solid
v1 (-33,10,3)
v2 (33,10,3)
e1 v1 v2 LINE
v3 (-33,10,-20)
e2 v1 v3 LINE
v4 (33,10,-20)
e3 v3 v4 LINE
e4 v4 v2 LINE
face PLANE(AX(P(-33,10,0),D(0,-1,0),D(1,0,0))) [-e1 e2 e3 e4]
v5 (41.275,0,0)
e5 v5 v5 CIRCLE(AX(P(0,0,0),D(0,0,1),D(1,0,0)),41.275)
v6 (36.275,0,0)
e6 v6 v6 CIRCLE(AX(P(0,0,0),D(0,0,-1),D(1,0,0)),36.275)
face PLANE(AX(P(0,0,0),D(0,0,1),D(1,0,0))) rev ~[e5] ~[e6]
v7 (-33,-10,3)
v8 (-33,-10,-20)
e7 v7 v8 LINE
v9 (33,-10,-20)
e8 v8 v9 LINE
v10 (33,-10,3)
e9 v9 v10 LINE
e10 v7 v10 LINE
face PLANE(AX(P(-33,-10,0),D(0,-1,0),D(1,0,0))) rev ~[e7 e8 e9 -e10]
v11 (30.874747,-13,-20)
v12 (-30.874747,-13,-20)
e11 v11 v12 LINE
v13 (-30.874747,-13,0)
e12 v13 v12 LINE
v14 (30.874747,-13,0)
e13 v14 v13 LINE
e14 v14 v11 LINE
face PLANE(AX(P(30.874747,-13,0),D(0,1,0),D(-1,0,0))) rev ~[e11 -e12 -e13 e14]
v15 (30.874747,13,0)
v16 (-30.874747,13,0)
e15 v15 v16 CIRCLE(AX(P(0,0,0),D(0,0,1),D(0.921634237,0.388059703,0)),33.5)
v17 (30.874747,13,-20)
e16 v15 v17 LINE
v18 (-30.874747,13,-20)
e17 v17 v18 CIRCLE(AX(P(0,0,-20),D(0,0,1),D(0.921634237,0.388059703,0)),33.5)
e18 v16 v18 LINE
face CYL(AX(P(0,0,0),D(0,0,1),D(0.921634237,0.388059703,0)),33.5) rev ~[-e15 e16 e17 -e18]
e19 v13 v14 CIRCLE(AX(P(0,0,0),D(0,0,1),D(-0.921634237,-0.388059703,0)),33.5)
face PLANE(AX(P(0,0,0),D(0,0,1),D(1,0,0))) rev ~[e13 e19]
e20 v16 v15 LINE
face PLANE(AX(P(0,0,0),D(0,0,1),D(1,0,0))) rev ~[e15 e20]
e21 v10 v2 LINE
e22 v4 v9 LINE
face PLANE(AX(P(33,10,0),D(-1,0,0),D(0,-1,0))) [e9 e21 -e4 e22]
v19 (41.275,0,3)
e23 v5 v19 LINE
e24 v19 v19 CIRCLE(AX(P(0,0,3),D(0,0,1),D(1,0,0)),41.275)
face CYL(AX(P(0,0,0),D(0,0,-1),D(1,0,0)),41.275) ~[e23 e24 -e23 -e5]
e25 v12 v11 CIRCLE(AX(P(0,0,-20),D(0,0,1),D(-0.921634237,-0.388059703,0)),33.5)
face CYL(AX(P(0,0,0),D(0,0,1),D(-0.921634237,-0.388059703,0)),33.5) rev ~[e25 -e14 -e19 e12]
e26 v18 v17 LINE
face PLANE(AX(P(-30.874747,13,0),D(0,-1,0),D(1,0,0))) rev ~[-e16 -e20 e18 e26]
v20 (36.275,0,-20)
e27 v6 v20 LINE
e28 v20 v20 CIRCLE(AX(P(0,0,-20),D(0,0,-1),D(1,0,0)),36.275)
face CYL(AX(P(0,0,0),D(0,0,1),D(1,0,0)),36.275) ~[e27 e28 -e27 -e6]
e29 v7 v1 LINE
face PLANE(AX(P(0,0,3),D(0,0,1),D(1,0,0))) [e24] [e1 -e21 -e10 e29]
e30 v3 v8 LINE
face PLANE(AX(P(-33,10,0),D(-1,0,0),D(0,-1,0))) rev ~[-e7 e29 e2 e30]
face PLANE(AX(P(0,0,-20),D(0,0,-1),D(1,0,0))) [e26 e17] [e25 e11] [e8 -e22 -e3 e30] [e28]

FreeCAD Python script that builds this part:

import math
import FreeCAD as App
import Part
import Sketcher

V = App.Vector


def add_polygon(sketch, points):
    """Adds a closed chain of lines whose ends are joined by coincident constraints."""
    first, n = sketch.GeometryCount, len(points)
    for a, b in zip(points, points[1:] + points[:1]):
        sketch.addGeometry(Part.LineSegment(App.Vector(*a, 0), App.Vector(*b, 0)), False)
    for i in range(n):
        sketch.addConstraint(Sketcher.Constraint("Coincident", first + i, 2, first + (i + 1) % n, 1))

doc = App.newDocument("Part")
body = doc.addObject("PartDesign::Body", "Body")

# Sketch on XY plane
sketch1 = body.newObject("Sketcher::SketchObject", "Sketch")
sketch1.AttachmentSupport = (doc.getObject("XY_Plane"), [""])
sketch1.MapMode = "FlatFace"
sketch1.addGeometry(Part.Circle(V(0, 0, 0), V(0, 0, 1), 41.275), False)
sketch1.addConstraint([
    Sketcher.Constraint("Coincident", 0, 3, -1, 1),
    Sketcher.Constraint("Diameter", 0, 82.55),
])
pad1 = body.newObject("PartDesign::Pad", "Pad")
pad1.Profile = sketch1
pad1.Length = 3

# Sketch on XY plane
sketch2 = body.newObject("Sketcher::SketchObject", "Sketch001")
sketch2.AttachmentSupport = (doc.getObject("XY_Plane"), [""])
sketch2.MapMode = "FlatFace"
sketch2.AttachmentOffset = App.Placement(V(0, 0, 3), App.Rotation())
add_polygon(sketch2, [(-33, 10), (-33, -10), (33, -10), (33, 10)])  # lines 0-3
sketch2.addConstraint([
    Sketcher.Constraint("Vertical", 0),
    Sketcher.Constraint("Horizontal", 1),
    Sketcher.Constraint("Vertical", 2),
    Sketcher.Constraint("Horizontal", 3),
    Sketcher.Constraint("Symmetric", 0, 2, 2, 2, -1, 1),
    Sketcher.Constraint("DistanceX", 1, 1, 1, 2, 66.0),
    Sketcher.Constraint("DistanceY", 0, 2, 0, 1, 20.0),
])
pocket1 = body.newObject("PartDesign::Pocket", "Pocket")
pocket1.Profile = sketch2
pocket1.Type = "ThroughAll"

# Sketch on XY plane
sketch3 = body.newObject("Sketcher::SketchObject", "Sketch002")
sketch3.AttachmentSupport = (doc.getObject("XY_Plane"), [""])
sketch3.MapMode = "FlatFace"
sketch3.addGeometry(Part.Circle(V(0, 0, 0), V(0, 0, 1), 36.275), False)  # 0
sketch3.addGeometry(Part.LineSegment(V(-30.874747, 13, 0), V(30.874747, 13, 0)), False)  # 1
sketch3.addGeometry(Part.ArcOfCircle(Part.Circle(V(0, 0, 0), V(0, 0, 1), 33.5), math.radians(22.833822), math.radians(157.166178)), False)  # 2
add_polygon(sketch3, [(33, 10), (-33, 10), (-33, -10), (33, -10)])  # lines 3-6
sketch3.addGeometry(Part.LineSegment(V(30.874747, -13, 0), V(-30.874747, -13, 0)), False)  # 7
sketch3.addGeometry(Part.ArcOfCircle(Part.Circle(V(0, 0, 0), V(0, 0, 1), 33.5), math.radians(-157.166178), math.radians(-22.833822)), False)  # 8
sketch3.addConstraint([
    Sketcher.Constraint("Coincident", 1, 1, 2, 2),
    Sketcher.Constraint("Coincident", 2, 1, 1, 2),
    Sketcher.Constraint("Coincident", 7, 1, 8, 2),
    Sketcher.Constraint("Coincident", 8, 1, 7, 2),
    Sketcher.Constraint("Horizontal", 1),
    Sketcher.Constraint("Horizontal", 3),
    Sketcher.Constraint("Vertical", 4),
    Sketcher.Constraint("Horizontal", 5),
    Sketcher.Constraint("Vertical", 6),
    Sketcher.Constraint("Horizontal", 7),
    Sketcher.Constraint("Coincident", 0, 3, -1, 1),
    Sketcher.Constraint("Coincident", 2, 3, -1, 1),
    Sketcher.Constraint("Coincident", 8, 3, -1, 1),
    Sketcher.Constraint("Equal", 2, 8),
    Sketcher.Constraint("Symmetric", 3, 2, 5, 2, -1, 1),
    Sketcher.Constraint("Vertical", 2, 1, 7, 1),
    Sketcher.Constraint("Radius", 2, 33.5),
    Sketcher.Constraint("Diameter", 0, 72.55),
    Sketcher.Constraint("DistanceX", 3, 2, 3, 1, 66.0),
    Sketcher.Constraint("DistanceY", 4, 2, 4, 1, 20.0),
    Sketcher.Constraint("DistanceY", -1, 1, 1, 1, 13.0),
])
pad2 = body.newObject("PartDesign::Pad", "Pad001")
pad2.Profile = sketch3
pad2.Length = 20
pad2.Reversed = True

doc.recompute()
